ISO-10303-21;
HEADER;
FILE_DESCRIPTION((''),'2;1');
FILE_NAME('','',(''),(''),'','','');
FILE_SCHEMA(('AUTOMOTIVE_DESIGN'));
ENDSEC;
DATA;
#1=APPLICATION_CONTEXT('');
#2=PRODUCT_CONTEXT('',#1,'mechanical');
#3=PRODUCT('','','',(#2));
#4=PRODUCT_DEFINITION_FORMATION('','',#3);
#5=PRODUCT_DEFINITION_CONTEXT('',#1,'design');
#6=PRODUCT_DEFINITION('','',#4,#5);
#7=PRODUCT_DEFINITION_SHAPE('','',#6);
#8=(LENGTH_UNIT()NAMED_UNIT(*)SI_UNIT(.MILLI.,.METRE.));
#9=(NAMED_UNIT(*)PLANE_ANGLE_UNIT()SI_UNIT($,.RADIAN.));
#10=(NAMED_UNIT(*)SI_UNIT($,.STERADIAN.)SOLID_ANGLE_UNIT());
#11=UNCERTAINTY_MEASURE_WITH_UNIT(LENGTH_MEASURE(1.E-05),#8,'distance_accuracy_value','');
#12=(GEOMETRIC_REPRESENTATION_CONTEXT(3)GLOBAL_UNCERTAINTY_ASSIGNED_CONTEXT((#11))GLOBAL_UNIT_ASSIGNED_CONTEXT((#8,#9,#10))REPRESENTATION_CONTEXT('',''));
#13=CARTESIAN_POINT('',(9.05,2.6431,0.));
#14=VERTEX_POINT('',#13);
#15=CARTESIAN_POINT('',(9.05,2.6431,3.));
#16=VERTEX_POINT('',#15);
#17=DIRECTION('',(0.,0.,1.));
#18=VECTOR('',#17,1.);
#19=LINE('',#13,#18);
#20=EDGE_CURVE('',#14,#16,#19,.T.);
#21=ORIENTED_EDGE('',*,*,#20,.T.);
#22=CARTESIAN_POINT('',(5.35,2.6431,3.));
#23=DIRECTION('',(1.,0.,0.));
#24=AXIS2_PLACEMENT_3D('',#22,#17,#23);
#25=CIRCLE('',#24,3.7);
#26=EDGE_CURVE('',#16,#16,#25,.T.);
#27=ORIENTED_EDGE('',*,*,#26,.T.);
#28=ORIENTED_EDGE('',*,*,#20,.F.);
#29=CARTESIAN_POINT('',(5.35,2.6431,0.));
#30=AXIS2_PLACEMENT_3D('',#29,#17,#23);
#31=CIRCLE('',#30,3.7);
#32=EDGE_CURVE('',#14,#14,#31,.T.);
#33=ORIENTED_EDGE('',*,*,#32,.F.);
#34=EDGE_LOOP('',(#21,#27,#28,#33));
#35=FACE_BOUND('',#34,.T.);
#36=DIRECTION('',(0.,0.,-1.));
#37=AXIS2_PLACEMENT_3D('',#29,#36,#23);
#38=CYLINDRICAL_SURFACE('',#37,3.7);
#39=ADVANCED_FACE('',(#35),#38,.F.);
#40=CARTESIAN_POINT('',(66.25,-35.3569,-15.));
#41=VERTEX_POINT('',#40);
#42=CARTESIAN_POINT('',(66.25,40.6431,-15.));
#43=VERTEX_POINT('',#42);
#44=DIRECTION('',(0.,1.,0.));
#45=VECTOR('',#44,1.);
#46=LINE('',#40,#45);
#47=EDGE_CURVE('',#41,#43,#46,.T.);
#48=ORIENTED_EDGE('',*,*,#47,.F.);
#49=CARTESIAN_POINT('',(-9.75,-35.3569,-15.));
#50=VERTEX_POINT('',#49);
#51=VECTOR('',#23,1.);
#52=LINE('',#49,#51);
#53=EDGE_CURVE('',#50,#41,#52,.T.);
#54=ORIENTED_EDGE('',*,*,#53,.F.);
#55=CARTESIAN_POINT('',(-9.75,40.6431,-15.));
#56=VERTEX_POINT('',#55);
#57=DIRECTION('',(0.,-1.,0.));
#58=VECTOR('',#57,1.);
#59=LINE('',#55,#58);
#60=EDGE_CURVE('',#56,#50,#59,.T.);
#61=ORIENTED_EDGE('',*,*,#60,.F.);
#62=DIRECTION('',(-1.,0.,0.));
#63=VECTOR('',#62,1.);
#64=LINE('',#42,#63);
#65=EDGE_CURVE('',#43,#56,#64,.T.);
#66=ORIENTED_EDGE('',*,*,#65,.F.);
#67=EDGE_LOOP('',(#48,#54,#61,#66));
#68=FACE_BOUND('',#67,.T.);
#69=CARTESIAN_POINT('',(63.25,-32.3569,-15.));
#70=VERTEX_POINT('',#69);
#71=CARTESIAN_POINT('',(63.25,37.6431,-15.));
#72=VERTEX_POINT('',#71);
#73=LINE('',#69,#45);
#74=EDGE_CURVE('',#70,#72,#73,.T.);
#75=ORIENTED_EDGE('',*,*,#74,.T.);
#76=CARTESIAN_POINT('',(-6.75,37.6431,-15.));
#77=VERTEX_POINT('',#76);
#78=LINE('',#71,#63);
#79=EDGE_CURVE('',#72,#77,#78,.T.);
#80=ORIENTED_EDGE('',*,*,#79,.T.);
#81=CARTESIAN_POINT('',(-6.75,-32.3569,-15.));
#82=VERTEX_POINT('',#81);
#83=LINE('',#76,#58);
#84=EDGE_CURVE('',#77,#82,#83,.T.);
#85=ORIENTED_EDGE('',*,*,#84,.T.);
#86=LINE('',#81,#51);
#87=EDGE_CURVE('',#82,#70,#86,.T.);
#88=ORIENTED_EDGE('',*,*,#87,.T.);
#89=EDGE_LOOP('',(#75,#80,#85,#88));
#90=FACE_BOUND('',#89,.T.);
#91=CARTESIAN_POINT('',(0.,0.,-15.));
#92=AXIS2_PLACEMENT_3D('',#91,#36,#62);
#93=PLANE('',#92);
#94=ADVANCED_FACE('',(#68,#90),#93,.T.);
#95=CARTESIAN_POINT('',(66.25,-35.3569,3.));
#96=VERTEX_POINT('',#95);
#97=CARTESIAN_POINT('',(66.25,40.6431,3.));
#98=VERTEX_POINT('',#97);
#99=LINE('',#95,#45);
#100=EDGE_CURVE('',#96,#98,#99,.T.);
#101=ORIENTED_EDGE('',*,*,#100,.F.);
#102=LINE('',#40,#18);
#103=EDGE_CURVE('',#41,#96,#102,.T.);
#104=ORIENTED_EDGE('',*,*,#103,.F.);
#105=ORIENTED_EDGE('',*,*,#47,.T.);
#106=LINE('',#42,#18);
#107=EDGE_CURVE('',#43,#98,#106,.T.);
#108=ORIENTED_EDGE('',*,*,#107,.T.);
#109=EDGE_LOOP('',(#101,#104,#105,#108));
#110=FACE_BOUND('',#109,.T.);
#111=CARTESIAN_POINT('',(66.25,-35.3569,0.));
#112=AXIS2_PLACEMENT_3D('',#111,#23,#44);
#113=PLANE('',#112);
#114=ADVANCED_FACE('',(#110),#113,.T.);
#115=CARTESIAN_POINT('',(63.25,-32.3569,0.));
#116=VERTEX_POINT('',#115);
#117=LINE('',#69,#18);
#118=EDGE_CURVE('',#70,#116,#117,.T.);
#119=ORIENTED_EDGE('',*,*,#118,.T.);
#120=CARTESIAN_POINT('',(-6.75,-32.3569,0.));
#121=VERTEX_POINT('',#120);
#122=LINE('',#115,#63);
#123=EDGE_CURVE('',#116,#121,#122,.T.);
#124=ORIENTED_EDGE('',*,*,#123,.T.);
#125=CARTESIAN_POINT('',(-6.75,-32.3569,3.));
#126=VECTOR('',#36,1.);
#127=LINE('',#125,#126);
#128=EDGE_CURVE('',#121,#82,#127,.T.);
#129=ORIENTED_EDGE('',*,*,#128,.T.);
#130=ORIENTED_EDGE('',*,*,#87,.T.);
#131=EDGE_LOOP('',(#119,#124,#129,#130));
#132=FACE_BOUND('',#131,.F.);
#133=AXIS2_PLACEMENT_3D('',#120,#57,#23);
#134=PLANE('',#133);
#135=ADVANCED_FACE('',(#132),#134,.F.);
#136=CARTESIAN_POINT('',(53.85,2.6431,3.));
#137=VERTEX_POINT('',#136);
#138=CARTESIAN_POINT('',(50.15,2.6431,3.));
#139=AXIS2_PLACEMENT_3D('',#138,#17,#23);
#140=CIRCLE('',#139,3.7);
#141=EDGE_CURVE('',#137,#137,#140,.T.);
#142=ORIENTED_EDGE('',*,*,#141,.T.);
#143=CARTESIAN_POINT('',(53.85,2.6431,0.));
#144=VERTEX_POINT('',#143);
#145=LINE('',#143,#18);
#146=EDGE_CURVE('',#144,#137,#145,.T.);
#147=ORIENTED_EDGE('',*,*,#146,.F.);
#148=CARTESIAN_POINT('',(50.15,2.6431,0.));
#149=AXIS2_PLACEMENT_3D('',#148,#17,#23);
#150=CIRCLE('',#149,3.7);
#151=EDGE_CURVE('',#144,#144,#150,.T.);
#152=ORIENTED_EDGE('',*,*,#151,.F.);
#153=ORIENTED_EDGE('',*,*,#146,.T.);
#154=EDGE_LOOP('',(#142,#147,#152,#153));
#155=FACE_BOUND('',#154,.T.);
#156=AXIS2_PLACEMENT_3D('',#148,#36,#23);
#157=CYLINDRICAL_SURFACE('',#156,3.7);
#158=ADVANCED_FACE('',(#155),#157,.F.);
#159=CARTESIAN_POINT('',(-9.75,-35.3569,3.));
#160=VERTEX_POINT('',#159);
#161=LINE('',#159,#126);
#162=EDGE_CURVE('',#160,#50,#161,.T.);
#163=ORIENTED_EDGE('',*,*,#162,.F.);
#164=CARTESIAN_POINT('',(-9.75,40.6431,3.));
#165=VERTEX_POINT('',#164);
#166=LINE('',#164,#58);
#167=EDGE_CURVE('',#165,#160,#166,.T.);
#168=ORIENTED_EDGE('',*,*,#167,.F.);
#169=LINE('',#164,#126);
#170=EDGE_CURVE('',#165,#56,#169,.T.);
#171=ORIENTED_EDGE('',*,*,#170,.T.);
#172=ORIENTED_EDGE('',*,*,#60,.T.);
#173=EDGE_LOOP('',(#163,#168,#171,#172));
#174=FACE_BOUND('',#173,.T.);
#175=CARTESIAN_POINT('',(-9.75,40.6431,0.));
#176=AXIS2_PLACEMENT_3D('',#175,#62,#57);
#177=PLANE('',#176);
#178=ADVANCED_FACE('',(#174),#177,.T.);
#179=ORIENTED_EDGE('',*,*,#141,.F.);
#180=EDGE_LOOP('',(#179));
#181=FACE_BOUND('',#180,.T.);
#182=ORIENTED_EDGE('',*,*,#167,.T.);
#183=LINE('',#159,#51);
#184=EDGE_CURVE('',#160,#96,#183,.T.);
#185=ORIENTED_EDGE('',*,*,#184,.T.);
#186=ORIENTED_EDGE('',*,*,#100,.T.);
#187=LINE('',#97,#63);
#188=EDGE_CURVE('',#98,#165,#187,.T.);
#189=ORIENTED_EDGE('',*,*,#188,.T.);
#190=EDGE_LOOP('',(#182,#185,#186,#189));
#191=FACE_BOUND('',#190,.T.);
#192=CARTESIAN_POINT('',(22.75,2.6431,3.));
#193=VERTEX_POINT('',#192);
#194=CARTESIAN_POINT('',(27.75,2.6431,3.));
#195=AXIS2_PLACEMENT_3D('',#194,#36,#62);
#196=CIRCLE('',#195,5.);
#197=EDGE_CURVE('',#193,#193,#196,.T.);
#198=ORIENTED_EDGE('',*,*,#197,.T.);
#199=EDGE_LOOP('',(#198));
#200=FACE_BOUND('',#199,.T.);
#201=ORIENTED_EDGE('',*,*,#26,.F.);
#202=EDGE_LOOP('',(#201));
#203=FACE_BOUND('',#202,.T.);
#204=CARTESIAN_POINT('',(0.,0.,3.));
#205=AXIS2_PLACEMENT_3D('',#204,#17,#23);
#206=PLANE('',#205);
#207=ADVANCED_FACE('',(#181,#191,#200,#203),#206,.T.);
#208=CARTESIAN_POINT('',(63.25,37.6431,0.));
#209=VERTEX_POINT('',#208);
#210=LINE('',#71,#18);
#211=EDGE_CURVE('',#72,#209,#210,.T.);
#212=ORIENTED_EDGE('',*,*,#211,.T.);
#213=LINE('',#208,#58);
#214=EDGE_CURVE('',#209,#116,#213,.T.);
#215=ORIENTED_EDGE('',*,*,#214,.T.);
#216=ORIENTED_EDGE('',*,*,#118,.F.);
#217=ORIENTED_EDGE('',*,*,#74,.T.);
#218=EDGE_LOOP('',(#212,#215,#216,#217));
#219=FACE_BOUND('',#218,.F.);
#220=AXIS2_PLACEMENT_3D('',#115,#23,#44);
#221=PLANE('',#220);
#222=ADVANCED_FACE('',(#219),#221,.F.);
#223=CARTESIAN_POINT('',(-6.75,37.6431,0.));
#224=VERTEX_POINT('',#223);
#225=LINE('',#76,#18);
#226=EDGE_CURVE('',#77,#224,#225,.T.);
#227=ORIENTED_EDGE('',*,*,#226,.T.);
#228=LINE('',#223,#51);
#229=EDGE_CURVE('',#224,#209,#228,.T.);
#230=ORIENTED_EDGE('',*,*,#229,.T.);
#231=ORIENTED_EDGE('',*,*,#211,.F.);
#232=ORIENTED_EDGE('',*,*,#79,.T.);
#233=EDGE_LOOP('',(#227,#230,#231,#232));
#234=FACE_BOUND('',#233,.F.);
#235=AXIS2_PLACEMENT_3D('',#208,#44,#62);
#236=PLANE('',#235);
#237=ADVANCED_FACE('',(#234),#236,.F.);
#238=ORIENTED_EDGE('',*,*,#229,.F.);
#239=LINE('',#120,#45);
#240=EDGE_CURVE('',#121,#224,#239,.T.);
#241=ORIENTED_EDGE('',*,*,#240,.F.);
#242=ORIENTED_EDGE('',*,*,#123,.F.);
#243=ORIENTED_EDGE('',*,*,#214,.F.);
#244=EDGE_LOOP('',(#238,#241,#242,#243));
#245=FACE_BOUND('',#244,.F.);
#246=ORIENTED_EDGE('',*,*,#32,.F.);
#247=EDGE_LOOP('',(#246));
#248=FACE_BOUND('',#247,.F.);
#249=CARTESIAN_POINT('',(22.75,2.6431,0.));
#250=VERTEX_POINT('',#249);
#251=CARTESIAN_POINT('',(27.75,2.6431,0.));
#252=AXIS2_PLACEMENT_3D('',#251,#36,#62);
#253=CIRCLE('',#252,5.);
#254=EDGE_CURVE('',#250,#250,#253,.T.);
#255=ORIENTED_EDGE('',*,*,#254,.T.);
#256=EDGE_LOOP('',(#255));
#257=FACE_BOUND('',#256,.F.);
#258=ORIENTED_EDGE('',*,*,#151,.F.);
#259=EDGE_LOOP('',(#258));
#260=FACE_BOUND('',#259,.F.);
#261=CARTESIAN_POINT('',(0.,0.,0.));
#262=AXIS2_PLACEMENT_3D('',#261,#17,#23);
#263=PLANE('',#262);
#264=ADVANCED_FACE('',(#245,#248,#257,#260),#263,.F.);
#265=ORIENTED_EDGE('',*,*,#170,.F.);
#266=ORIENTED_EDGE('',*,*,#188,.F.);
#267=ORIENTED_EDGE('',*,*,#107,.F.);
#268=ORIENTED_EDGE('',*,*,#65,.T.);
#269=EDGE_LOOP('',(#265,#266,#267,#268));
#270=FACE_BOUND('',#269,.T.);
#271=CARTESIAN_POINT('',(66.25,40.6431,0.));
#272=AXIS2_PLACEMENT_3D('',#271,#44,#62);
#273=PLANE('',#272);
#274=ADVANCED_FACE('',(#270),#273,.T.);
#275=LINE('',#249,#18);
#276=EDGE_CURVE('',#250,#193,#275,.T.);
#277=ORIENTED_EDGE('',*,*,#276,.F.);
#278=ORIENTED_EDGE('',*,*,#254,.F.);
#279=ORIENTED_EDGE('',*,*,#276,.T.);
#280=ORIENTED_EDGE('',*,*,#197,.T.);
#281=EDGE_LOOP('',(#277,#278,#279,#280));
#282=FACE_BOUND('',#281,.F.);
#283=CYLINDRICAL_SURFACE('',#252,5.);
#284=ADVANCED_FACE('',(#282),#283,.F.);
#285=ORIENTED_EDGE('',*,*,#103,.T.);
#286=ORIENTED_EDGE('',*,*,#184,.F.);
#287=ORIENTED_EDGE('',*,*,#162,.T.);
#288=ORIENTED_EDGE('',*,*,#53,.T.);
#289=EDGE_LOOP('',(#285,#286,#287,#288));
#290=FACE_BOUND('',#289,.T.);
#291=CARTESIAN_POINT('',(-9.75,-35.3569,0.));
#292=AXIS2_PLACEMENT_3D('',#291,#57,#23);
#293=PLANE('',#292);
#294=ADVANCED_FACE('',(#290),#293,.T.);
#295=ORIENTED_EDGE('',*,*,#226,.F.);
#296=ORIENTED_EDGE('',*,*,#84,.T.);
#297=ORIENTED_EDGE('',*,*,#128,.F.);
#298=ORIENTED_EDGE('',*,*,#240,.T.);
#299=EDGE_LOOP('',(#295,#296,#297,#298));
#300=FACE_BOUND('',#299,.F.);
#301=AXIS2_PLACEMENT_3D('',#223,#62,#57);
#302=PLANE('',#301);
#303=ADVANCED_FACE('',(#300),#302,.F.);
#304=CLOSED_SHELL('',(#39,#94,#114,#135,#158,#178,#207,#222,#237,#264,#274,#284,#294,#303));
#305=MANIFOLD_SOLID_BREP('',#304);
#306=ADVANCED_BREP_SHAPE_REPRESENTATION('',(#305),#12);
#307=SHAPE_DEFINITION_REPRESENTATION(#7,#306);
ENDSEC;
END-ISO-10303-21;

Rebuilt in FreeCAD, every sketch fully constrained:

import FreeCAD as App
import Part
import Sketcher

V = App.Vector
Q = App.Units.Quantity

doc = App.newDocument("Part")
body = doc.addObject("PartDesign::Body", "Body")

sketch1 = body.newObject("Sketcher::SketchObject", "Sketch")
sketch1.AttachmentSupport = (doc.getObject("XY_Plane"), [""])
sketch1.MapMode = "FlatFace"
sketch1.addGeometry(Part.LineSegment(V(63.2, 37.6, 0), V(-6.8, 37.6, 0)), False)
sketch1.addGeometry(Part.LineSegment(V(-6.8, 37.6, 0), V(-6.8, -32.4, 0)), False)
sketch1.addGeometry(Part.LineSegment(V(-6.8, -32.4, 0), V(63.2, -32.4, 0)), False)
sketch1.addGeometry(Part.LineSegment(V(63.2, -32.4, 0), V(63.2, 37.6, 0)), False)
sketch1.addGeometry(Part.Circle(V(5.3, 2.6, 0), V(0, 0, 1), 3.7), False)
sketch1.addGeometry(Part.Circle(V(50.1, 2.6, 0), V(0, 0, 1), 3.7), False)
sketch1.addConstraint(Sketcher.Constraint("Coincident", 0, 2, 1, 1))
sketch1.addConstraint(Sketcher.Constraint("Coincident", 1, 2, 2, 1))
sketch1.addConstraint(Sketcher.Constraint("Coincident", 2, 2, 3, 1))
sketch1.addConstraint(Sketcher.Constraint("Coincident", 3, 2, 0, 1))
sketch1.addConstraint(Sketcher.Constraint("Horizontal", 0))
sketch1.addConstraint(Sketcher.Constraint("Vertical", 1))
sketch1.addConstraint(Sketcher.Constraint("Horizontal", 2))
sketch1.addConstraint(Sketcher.Constraint("Vertical", 3))
sketch1.addConstraint(Sketcher.Constraint("Equal", 4, 5))
sketch1.addConstraint(Sketcher.Constraint("Horizontal", 4, 3, 5, 3))
sketch1.addConstraint(Sketcher.Constraint("Equal", 2, 1))
sketch1.addConstraint(Sketcher.Constraint("DistanceX", 0, 2, 0, 1, Q("70 mm")))
sketch1.addConstraint(Sketcher.Constraint("DistanceY", 4, 3, 0, 2, Q("35 mm")))
sketch1.addConstraint(Sketcher.Constraint("Diameter", 4, Q("7.4 mm")))
sketch1.addConstraint(Sketcher.Constraint("DistanceX", 4, 3, 5, 3, Q("44.8 mm")))
sketch1.addConstraint(Sketcher.Constraint("DistanceX", 0, 2, 4, 3, Q("12.1 mm")))
sketch1.addConstraint(Sketcher.Constraint("DistanceX", -1, 1, 4, 3, Q("5.35 mm")))
sketch1.addConstraint(Sketcher.Constraint("DistanceY", -1, 1, 4, 3, Q("2.643 mm")))
pad1 = body.newObject("PartDesign::Pad", "Pad")
pad1.Profile = sketch1
pad1.Length = 3

sketch2 = body.newObject("Sketcher::SketchObject", "Sketch001")
sketch2.AttachmentSupport = (doc.getObject("XY_Plane"), [""])
sketch2.MapMode = "FlatFace"
sketch2.addGeometry(Part.Circle(V(28, 3, 0), V(0, 0, 1), 5), False)
sketch2.addConstraint(Sketcher.Constraint("Diameter", 0, Q("10 mm")))
sketch2.addConstraint(Sketcher.Constraint("DistanceX", -1, 1, 0, 3, Q("27.75 mm")))
sketch2.addConstraint(Sketcher.Constraint("DistanceY", -1, 1, 0, 3, Q("2.643 mm")))
pocket1 = body.newObject("PartDesign::Pocket", "Pocket")
pocket1.Profile = sketch2
pocket1.Type = "ThroughAll"
pocket1.Reversed = True

sketch3 = body.newObject("Sketcher::SketchObject", "Sketch002")
sketch3.AttachmentSupport = (doc.getObject("XY_Plane"), [""])
sketch3.MapMode = "FlatFace"
sketch3.addGeometry(Part.LineSegment(V(66, -35, 0), V(-10, -35, 0)), False)
sketch3.addGeometry(Part.LineSegment(V(-10, -35, 0), V(-10, 41, 0)), False)
sketch3.addGeometry(Part.LineSegment(V(-10, 41, 0), V(66, 41, 0)), False)
sketch3.addGeometry(Part.LineSegment(V(66, 41, 0), V(66, -35, 0)), False)
sketch3.addGeometry(Part.LineSegment(V(-7, 38, 0), V(-7, -32, 0)), False)
sketch3.addGeometry(Part.LineSegment(V(-7, -32, 0), V(63, -32, 0)), False)
sketch3.addGeometry(Part.LineSegment(V(63, -32, 0), V(63, 38, 0)), False)
sketch3.addGeometry(Part.LineSegment(V(63, 38, 0), V(-7, 38, 0)), False)
sketch3.addConstraint(Sketcher.Constraint("Coincident", 0, 2, 1, 1))
sketch3.addConstraint(Sketcher.Constraint("Coincident", 1, 2, 2, 1))
sketch3.addConstraint(Sketcher.Constraint("Coincident", 2, 2, 3, 1))
sketch3.addConstraint(Sketcher.Constraint("Coincident", 3, 2, 0, 1))
sketch3.addConstraint(Sketcher.Constraint("Coincident", 4, 2, 5, 1))
sketch3.addConstraint(Sketcher.Constraint("Coincident", 5, 2, 6, 1))
sketch3.addConstraint(Sketcher.Constraint("Coincident", 6, 2, 7, 1))
sketch3.addConstraint(Sketcher.Constraint("Coincident", 7, 2, 4, 1))
sketch3.addConstraint(Sketcher.Constraint("Horizontal", 0))
sketch3.addConstraint(Sketcher.Constraint("Vertical", 1))
sketch3.addConstraint(Sketcher.Constraint("Horizontal", 2))
sketch3.addConstraint(Sketcher.Constraint("Vertical", 3))
sketch3.addConstraint(Sketcher.Constraint("Vertical", 4))
sketch3.addConstraint(Sketcher.Constraint("Horizontal", 5))
sketch3.addConstraint(Sketcher.Constraint("Vertical", 6))
sketch3.addConstraint(Sketcher.Constraint("Horizontal", 7))
sketch3.addConstraint(Sketcher.Constraint("Equal", 2, 1))
sketch3.addConstraint(Sketcher.Constraint("Equal", 7, 4))
sketch3.addConstraint(Sketcher.Constraint("DistanceX", 0, 2, 4, 2, Q("3 mm")))
sketch3.addConstraint(Sketcher.Constraint("DistanceY", 0, 2, 4, 2, Q("3 mm")))
sketch3.addConstraint(Sketcher.Constraint("DistanceX", 5, 2, 3, 2, Q("3 mm")))
sketch3.addConstraint(Sketcher.Constraint("DistanceX", 0, 2, 0, 1, Q("76 mm")))
sketch3.addConstraint(Sketcher.Constraint("DistanceX", 0, 2, -1, 1, Q("9.75 mm")))
sketch3.addConstraint(Sketcher.Constraint("DistanceY", 0, 2, -1, 1, Q("35.357 mm")))
pad2 = body.newObject("PartDesign::Pad", "Pad001")
pad2.Profile = sketch3
pad2.Type = "TwoLengths"
pad2.Length = 15
pad2.Length2 = 3
pad2.Reversed = True

doc.recompute()
